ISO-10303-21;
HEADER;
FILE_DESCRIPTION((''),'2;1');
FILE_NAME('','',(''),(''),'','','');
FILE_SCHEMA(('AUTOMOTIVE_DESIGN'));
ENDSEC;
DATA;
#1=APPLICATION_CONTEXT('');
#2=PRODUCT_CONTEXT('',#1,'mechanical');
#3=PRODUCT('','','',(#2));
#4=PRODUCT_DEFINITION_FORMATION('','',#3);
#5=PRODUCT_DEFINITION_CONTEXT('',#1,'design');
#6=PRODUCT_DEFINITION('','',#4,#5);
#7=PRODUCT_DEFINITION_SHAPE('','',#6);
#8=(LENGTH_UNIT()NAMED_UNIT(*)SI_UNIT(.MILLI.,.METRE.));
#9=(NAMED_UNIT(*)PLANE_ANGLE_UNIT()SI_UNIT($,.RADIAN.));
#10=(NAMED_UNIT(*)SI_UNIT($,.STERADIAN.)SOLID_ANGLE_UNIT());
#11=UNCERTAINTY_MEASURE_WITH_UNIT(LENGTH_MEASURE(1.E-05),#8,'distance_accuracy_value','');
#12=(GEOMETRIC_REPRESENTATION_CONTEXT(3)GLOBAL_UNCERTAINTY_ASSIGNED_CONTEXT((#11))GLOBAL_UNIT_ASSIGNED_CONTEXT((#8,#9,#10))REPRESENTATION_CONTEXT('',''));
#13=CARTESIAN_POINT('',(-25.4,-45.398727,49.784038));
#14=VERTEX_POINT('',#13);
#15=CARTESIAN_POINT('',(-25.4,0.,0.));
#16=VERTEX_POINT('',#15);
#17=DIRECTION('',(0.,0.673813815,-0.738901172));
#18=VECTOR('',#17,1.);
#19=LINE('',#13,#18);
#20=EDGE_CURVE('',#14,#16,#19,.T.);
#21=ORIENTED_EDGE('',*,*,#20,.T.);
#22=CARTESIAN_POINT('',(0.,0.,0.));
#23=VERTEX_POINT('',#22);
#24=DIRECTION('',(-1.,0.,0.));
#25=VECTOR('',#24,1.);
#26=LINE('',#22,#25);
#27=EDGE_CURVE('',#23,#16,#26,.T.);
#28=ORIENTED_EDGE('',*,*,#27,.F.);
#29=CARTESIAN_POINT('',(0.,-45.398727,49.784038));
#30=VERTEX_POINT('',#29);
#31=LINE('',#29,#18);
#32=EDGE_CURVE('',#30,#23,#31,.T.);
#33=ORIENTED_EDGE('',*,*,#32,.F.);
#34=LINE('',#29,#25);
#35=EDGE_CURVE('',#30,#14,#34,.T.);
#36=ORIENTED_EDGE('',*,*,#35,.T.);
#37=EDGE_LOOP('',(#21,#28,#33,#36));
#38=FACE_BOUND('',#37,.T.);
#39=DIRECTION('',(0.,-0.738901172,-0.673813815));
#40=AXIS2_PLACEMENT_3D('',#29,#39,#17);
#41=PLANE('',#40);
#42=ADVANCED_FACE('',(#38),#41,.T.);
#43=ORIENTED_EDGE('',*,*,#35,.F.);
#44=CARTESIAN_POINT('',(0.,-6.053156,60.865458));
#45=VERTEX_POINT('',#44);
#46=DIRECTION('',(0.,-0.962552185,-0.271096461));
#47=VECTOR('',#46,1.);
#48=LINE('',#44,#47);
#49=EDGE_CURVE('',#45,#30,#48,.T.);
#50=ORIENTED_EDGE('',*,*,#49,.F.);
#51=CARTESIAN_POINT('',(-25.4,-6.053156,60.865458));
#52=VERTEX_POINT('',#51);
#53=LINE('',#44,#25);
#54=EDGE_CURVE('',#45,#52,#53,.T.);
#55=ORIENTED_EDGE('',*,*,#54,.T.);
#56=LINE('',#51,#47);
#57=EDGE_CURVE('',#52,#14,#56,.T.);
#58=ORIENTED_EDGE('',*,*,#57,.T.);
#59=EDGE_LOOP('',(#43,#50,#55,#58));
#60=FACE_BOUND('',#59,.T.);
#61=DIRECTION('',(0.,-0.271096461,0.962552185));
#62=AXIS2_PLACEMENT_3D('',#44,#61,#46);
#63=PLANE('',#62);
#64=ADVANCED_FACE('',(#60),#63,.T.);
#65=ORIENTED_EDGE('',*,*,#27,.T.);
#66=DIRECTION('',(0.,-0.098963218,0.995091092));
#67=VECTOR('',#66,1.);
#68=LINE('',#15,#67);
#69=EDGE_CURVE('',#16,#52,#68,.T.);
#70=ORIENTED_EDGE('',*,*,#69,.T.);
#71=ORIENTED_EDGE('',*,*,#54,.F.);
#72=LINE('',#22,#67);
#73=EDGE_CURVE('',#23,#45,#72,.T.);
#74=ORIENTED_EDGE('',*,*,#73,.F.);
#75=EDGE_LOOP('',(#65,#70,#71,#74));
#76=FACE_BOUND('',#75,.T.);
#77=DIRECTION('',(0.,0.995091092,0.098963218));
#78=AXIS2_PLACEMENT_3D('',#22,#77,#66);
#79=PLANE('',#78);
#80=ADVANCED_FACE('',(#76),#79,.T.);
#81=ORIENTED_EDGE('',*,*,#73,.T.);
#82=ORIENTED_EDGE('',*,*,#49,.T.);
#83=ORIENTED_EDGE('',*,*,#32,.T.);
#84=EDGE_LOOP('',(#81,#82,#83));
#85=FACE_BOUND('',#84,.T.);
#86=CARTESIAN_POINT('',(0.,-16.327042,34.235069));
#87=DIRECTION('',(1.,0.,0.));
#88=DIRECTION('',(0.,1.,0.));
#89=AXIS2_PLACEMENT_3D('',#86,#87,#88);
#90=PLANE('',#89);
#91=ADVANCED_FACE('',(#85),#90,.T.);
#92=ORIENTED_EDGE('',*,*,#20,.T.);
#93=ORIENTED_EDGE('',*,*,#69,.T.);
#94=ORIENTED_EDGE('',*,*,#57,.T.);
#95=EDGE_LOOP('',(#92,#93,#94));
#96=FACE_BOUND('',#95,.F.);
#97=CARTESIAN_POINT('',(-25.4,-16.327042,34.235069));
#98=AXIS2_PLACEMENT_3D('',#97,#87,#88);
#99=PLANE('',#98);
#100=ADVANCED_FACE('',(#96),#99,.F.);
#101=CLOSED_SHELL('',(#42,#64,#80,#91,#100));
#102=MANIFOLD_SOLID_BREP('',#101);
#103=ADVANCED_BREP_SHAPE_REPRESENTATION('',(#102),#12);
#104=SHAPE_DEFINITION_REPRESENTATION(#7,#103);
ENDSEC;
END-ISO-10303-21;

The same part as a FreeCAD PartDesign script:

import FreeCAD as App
import Part
import Sketcher
Q = App.Units.Quantity

doc = App.newDocument("Part")
body = doc.addObject("PartDesign::Body", "Body")

sketch1 = body.newObject("Sketcher::SketchObject", "Sketch")
sketch1.AttachmentSupport = (doc.getObject("YZ_Plane"), [""])
sketch1.MapMode = "FlatFace"
sketch1.addGeometry([
    Part.LineSegment(App.Vector(-6, 61, 0), App.Vector(-45, 50, 0)),
    Part.LineSegment(App.Vector(-45, 50, 0), App.Vector(0, 0, 0)),
    Part.LineSegment(App.Vector(0, 0, 0), App.Vector(-6, 61, 0)),
], False)
sketch1.addConstraint([
    Sketcher.Constraint("Coincident", 0, 2, 1, 1),
    Sketcher.Constraint("Coincident", 1, 2, 2, 1),
    Sketcher.Constraint("Coincident", 2, 2, 0, 1),
    Sketcher.Constraint("Coincident", 1, 2, -1, 1),
    Sketcher.Constraint("Distance", 0, 40.876299),
    Sketcher.Constraint("DistanceY", -1, 1, 0, 2, 49.784038),
    Sketcher.Constraint("DistanceX", 0, 2, 2, 2, 39.345571),
    Sketcher.Constraint("Distance", 1, 67.375773),
])
pad1 = body.newObject("PartDesign::Pad", "Pad")
pad1.Profile = sketch1
pad1.Length = Q("1 in")
pad1.Reversed = True

doc.recompute()
